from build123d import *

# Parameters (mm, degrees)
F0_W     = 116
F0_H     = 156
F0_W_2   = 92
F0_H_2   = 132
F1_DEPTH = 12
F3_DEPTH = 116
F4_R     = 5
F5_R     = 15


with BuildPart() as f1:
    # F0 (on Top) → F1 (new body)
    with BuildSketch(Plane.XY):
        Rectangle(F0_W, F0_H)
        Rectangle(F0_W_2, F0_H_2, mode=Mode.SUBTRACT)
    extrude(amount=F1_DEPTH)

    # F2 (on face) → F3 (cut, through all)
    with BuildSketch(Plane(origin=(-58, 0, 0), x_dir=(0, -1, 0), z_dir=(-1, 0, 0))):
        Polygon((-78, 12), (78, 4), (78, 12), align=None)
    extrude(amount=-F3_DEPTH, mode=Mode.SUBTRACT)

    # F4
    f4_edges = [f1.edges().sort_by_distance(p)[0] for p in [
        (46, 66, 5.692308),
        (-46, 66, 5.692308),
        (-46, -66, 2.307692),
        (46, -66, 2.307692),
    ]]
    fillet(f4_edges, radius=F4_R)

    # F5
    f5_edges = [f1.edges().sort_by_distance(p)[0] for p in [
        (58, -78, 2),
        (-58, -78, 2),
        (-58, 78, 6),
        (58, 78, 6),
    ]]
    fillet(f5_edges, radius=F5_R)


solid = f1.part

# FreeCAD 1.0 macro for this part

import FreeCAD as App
import Part
import Sketcher

V = App.Vector
Q = App.Units.Quantity


def edges_at(feature, points):
    """Names of the edges that pass closest to the given points."""
    edges = feature.Shape.Edges
    near = lambda p: min(range(len(edges)), key=lambda i: edges[i].distToShape(Part.Vertex(*p))[0])
    return sorted({f"Edge{near(p) + 1}" for p in points})

doc = App.newDocument("Part")
params = doc.addObject("Spreadsheet::Sheet", "Params")
for row, (alias, value) in enumerate([
    ("sketch1_width", "116 mm"),
    ("sketch1_width2", "92 mm"),
    ("sketch1_height", "156 mm"),
    ("sketch1_height2", "132 mm"),
    ("pad1_length", "12 mm"),
    ("sketch2_width", "156 mm"),
    ("sketch2_height", "8 mm"),
    ("fillet_radius", "5 mm"),
    ("fillet2_radius", "15 mm"),
], start=1):
    params.set(f"A{row}", alias)
    params.set(f"B{row}", "=" + value)
    params.setAlias(f"B{row}", alias)

body = doc.addObject("PartDesign::Body", "Body")

# Sketch on XY plane
sketch1 = body.newObject("Sketcher::SketchObject", "Sketch")
sketch1.AttachmentSupport = (doc.getObject("XY_Plane"), [""])
sketch1.MapMode = "FlatFace"
sketch1.addGeometry([
    Part.LineSegment(V(-58, 78, 0), V(-58, -78, 0)),  # 0
    Part.LineSegment(V(-58, -78, 0), V(58, -78, 0)),  # 1
    Part.LineSegment(V(58, -78, 0), V(58, 78, 0)),  # 2
    Part.LineSegment(V(58, 78, 0), V(-58, 78, 0)),  # 3
    Part.LineSegment(V(46, -66, 0), V(-46, -66, 0)),  # 4
    Part.LineSegment(V(-46, -66, 0), V(-46, 66, 0)),  # 5
    Part.LineSegment(V(-46, 66, 0), V(46, 66, 0)),  # 6
    Part.LineSegment(V(46, 66, 0), V(46, -66, 0)),  # 7
], False)
sketch1.addConstraint([
    Sketcher.Constraint("Coincident", 0, 2, 1, 1),
    Sketcher.Constraint("Coincident", 1, 2, 2, 1),
    Sketcher.Constraint("Coincident", 2, 2, 3, 1),
    Sketcher.Constraint("Coincident", 3, 2, 0, 1),
    Sketcher.Constraint("Coincident", 4, 2, 5, 1),
    Sketcher.Constraint("Coincident", 5, 2, 6, 1),
    Sketcher.Constraint("Coincident", 6, 2, 7, 1),
    Sketcher.Constraint("Coincident", 7, 2, 4, 1),
    Sketcher.Constraint("Vertical", 0),
    Sketcher.Constraint("Horizontal", 1),
    Sketcher.Constraint("Vertical", 2),
    Sketcher.Constraint("Horizontal", 3),
    Sketcher.Constraint("Horizontal", 4),
    Sketcher.Constraint("Vertical", 5),
    Sketcher.Constraint("Horizontal", 6),
    Sketcher.Constraint("Vertical", 7),
    Sketcher.Constraint("Symmetric", 0, 2, 2, 2, -1, 1),
    Sketcher.Constraint("Symmetric", 4, 2, 6, 2, -1, 1),
    Sketcher.Constraint("DistanceX", 1, 1, 1, 2, Q("116 mm")),
    Sketcher.Constraint("DistanceX", 4, 2, 4, 1, Q("92 mm")),
    Sketcher.Constraint("DistanceY", 0, 2, 0, 1, Q("156 mm")),
    Sketcher.Constraint("DistanceY", 5, 1, 5, 2, Q("132 mm")),
])
sketch1.setExpression("Constraints[18]", "Params.sketch1_width")
sketch1.setExpression("Constraints[19]", "Params.sketch1_width2")
sketch1.setExpression("Constraints[20]", "Params.sketch1_height")
sketch1.setExpression("Constraints[21]", "Params.sketch1_height2")
pad1 = body.newObject("PartDesign::Pad", "Pad")
pad1.Profile = sketch1
pad1.setExpression("Length", "Params.pad1_length")

# Sketch on YZ plane
sketch2 = body.newObject("Sketcher::SketchObject", "Sketch001")
sketch2.AttachmentSupport = (doc.getObject("YZ_Plane"), [""])
sketch2.MapMode = "FlatFace"
sketch2.AttachmentOffset = App.Placement(V(0, 0, -58), App.Rotation())
sketch2.addGeometry([
    Part.LineSegment(V(78, 12, 0), V(-78, 4, 0)),
    Part.LineSegment(V(-78, 4, 0), V(-78, 12, 0)),
    Part.LineSegment(V(-78, 12, 0), V(78, 12, 0)),
], False)
sketch2.addConstraint([
    Sketcher.Constraint("Coincident", 0, 2, 1, 1),
    Sketcher.Constraint("Coincident", 1, 2, 2, 1),
    Sketcher.Constraint("Coincident", 2, 2, 0, 1),
    Sketcher.Constraint("Vertical", 1),
    Sketcher.Constraint("Horizontal", 2),
    Sketcher.Constraint("DistanceX", 2, 1, 2, 2, Q("156 mm")),
    Sketcher.Constraint("DistanceY", 1, 1, 1, 2, Q("8 mm")),
    Sketcher.Constraint("DistanceX", 0, 2, -1, 1, Q("78 mm")),
    Sketcher.Constraint("DistanceY", -1, 1, 0, 2, Q("4 mm")),
])
sketch2.setExpression("Constraints[5]", "Params.sketch2_width")
sketch2.setExpression("Constraints[6]", "Params.sketch2_height")
pocket1 = body.newObject("PartDesign::Pocket", "Pocket")
pocket1.Profile = sketch2
pocket1.Type = "ThroughAll"
pocket1.Reversed = True
doc.recompute()

fillet = body.newObject("PartDesign::Fillet", "Fillet")
fillet.Base = (pocket1, edges_at(pocket1, [
    (46, 66, 5.692),
    (-46, 66, 5.692),
    (-46, -66, 2.308),
    (46, -66, 2.308),
]))
fillet.setExpression("Radius", "Params.fillet_radius")
doc.recompute()

fillet2 = body.newObject("PartDesign::Fillet", "Fillet001")
fillet2.Base = (fillet, edges_at(fillet, [
    (58, -78, 2),
    (-58, -78, 2),
    (-58, 78, 6),
    (58, 78, 6),
]))
fillet2.setExpression("Radius", "Params.fillet2_radius")

doc.recompute()
